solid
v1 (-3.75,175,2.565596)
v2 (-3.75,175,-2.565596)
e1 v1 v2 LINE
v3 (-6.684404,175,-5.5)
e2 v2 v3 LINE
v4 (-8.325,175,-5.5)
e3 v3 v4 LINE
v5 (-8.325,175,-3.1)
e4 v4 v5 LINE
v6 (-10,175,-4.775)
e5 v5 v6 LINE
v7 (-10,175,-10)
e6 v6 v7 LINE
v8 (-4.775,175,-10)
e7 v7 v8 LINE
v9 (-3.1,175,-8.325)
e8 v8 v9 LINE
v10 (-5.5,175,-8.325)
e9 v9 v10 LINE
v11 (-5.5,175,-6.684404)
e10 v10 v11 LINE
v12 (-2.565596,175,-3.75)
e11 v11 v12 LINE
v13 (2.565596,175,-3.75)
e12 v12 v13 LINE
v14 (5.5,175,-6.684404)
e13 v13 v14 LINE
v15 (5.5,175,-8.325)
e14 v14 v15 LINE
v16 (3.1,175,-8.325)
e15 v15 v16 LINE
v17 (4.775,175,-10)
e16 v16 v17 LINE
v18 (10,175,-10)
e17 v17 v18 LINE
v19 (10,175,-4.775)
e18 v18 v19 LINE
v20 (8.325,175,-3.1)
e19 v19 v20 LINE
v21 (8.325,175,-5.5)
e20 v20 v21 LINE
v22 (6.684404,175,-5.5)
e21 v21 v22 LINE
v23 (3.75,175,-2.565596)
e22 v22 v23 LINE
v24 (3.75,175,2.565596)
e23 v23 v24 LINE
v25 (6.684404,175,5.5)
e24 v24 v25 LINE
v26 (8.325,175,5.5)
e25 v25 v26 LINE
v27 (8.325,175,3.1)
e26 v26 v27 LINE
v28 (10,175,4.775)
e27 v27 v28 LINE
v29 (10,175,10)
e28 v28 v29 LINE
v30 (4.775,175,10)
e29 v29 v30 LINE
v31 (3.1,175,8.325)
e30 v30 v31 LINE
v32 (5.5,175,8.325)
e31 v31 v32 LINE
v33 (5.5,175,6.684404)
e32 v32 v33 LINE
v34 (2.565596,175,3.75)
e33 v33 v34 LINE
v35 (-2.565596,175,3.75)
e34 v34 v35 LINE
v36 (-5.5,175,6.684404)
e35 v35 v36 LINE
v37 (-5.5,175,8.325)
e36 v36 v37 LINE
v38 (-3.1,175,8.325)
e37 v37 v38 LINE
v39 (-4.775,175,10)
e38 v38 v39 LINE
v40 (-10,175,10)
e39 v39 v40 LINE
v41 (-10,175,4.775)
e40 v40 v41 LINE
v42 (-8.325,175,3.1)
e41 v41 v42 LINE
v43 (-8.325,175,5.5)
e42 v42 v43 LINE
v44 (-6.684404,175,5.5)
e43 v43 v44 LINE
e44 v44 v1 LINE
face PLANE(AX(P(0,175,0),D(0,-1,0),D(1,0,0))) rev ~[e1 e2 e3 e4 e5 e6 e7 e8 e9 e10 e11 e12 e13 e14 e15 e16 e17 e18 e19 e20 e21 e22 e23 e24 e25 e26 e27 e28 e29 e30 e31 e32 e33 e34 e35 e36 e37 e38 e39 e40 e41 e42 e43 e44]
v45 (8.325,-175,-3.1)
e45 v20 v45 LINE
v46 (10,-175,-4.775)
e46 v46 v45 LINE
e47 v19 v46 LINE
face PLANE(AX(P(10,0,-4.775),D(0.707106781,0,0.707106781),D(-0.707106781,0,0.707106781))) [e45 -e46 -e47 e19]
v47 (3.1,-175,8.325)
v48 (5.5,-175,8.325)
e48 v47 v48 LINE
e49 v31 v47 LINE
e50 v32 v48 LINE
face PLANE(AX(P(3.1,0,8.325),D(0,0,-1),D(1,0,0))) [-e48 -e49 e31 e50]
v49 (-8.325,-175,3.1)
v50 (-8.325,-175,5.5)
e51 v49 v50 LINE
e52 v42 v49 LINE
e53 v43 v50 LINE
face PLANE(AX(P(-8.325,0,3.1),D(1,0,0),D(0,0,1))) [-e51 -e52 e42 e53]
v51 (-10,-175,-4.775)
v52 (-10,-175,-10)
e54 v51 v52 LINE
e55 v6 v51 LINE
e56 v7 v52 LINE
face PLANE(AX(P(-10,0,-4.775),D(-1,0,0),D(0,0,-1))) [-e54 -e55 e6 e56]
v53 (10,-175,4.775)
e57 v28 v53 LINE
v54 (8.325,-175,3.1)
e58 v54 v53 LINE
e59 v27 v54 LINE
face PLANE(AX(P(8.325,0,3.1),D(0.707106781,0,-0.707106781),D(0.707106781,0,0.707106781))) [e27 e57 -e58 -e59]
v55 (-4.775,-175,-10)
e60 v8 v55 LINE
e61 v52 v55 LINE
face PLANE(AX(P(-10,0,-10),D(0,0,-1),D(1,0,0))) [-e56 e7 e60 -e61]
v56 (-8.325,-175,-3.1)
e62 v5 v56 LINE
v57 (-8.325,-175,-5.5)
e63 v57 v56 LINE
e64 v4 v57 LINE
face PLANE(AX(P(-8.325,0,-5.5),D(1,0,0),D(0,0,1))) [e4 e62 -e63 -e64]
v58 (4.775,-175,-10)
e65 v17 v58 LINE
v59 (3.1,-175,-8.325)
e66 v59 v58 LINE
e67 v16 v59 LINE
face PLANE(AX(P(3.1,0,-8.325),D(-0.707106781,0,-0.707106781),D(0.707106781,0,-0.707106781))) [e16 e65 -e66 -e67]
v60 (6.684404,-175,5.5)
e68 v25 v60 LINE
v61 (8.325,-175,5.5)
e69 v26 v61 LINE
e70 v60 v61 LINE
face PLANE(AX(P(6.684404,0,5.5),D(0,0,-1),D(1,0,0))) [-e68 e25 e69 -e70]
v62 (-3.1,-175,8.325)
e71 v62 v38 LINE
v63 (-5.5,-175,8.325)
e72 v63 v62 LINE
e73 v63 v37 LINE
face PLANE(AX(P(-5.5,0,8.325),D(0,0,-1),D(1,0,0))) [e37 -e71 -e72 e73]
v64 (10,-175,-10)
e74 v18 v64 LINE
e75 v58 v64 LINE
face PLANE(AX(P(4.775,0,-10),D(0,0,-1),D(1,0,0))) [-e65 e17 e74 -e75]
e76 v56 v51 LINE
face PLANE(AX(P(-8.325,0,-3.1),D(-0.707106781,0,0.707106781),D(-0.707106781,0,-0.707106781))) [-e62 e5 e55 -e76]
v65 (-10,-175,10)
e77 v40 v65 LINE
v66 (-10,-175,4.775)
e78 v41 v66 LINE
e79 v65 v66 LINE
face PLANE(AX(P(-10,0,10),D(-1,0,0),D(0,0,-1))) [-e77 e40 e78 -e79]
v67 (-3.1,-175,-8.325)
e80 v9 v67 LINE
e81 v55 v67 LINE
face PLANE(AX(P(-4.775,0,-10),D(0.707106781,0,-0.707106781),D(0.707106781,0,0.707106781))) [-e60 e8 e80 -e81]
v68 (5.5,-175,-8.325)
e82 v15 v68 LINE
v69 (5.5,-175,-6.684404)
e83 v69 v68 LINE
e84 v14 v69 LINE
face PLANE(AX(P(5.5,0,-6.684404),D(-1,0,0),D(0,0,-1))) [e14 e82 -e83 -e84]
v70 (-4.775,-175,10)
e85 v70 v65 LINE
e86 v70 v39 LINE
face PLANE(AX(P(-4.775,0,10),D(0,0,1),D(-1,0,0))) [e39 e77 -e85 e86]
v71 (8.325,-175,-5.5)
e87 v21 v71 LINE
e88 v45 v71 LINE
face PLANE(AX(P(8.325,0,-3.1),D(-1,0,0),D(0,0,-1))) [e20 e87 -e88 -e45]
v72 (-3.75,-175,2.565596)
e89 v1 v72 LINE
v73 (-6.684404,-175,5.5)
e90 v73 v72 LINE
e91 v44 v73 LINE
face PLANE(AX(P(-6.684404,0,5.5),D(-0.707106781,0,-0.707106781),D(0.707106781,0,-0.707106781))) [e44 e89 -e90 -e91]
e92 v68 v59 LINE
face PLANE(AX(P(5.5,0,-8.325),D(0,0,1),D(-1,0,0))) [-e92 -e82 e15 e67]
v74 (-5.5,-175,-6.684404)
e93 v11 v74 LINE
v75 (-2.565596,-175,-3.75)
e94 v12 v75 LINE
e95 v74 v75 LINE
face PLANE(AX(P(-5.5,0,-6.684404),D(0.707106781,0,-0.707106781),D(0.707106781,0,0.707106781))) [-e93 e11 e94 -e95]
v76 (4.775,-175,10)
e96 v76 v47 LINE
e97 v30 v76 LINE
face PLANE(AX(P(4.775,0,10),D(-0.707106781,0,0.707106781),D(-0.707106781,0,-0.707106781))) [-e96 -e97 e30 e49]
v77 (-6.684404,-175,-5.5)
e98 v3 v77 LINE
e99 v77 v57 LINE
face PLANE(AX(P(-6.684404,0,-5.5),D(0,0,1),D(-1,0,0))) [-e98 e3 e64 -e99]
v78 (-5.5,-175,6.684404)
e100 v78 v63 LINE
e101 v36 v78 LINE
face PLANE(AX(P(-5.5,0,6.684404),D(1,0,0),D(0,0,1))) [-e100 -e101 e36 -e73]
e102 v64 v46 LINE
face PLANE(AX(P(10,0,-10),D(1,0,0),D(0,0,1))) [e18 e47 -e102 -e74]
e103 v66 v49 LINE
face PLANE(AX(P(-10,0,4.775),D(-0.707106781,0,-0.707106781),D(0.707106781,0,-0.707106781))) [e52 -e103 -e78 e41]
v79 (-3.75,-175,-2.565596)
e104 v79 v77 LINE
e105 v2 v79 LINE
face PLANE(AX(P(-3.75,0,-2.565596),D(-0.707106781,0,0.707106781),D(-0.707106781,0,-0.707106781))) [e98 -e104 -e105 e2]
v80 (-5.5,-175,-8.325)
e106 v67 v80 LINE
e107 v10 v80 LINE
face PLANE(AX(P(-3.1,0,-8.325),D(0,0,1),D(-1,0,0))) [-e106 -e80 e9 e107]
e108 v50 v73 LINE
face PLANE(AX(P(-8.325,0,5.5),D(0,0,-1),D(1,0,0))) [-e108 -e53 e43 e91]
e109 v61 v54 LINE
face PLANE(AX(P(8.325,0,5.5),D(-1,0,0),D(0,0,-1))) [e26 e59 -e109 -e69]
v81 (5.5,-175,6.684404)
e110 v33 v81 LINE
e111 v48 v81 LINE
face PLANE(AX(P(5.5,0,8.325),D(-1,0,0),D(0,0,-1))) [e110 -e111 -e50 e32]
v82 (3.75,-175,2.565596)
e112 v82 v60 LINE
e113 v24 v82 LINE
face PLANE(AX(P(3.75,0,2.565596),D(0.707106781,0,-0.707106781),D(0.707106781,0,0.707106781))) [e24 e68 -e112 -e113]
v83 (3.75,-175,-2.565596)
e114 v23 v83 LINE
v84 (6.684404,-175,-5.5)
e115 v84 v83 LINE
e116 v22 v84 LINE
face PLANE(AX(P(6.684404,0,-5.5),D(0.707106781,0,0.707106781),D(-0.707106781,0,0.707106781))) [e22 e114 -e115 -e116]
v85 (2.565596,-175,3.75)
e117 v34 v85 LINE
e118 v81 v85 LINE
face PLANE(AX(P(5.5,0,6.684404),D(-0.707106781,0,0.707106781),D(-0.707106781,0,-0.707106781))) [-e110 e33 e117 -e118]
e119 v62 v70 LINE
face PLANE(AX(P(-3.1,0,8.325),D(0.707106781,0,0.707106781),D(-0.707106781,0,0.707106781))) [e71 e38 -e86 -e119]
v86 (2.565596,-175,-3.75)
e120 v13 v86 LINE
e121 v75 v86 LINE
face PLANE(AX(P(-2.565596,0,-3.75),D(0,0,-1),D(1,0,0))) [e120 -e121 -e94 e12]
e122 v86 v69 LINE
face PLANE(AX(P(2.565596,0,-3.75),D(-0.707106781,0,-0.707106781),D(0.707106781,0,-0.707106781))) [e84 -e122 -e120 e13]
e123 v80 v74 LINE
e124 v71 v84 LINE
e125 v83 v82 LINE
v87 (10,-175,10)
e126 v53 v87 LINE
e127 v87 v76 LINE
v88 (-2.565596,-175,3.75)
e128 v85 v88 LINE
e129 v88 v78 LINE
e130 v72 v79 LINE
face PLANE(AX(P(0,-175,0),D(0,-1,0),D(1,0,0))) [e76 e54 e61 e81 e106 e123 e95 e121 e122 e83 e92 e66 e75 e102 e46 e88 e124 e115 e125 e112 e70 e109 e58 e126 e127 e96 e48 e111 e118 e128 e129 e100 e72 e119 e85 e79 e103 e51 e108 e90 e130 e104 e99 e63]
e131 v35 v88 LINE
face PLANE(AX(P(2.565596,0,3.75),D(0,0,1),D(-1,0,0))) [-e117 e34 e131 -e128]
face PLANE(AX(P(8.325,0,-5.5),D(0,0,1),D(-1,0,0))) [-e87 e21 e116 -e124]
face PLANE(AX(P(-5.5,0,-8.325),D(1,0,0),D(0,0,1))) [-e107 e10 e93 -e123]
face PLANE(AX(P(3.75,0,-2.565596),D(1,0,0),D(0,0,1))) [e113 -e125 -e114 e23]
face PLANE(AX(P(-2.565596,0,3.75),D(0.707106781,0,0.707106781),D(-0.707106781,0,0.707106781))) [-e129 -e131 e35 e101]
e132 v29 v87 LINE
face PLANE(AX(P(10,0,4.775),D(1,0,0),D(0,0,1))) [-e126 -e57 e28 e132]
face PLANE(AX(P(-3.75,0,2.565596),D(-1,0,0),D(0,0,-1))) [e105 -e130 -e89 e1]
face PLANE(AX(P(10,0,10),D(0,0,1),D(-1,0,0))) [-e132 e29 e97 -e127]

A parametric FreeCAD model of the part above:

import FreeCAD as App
import Part
import Sketcher

doc = App.newDocument("Part")
body = doc.addObject("PartDesign::Body", "Body")

# Sketch on XZ plane
sketch1 = body.newObject("Sketcher::SketchObject", "Sketch")
sketch1.AttachmentSupport = (doc.getObject("XZ_Plane"), [""])
sketch1.MapMode = "FlatFace"
sketch1.addGeometry(Part.LineSegment(App.Vector(-4.8, 10, 0), App.Vector(-10, 10, 0)), False)
sketch1.addGeometry(Part.LineSegment(App.Vector(-10, 10, 0), App.Vector(-10, 4.8, 0)), False)
sketch1.addGeometry(Part.LineSegment(App.Vector(-10, 4.8, 0), App.Vector(-8.3, 3.1, 0)), False)
sketch1.addGeometry(Part.LineSegment(App.Vector(-8.3, 3.1, 0), App.Vector(-8.3, 5.5, 0)), False)
sketch1.addGeometry(Part.LineSegment(App.Vector(-8.3, 5.5, 0), App.Vector(-6.7, 5.5, 0)), False)
sketch1.addGeometry(Part.LineSegment(App.Vector(-6.7, 5.5, 0), App.Vector(-3.8, 2.6, 0)), False)
sketch1.addGeometry(Part.LineSegment(App.Vector(-3.8, 2.6, 0), App.Vector(-3.8, -2.6, 0)), False)
sketch1.addGeometry(Part.LineSegment(App.Vector(-3.8, -2.6, 0), App.Vector(-6.7, -5.5, 0)), False)
sketch1.addGeometry(Part.LineSegment(App.Vector(-6.7, -5.5, 0), App.Vector(-8.3, -5.5, 0)), False)
sketch1.addGeometry(Part.LineSegment(App.Vector(-8.3, -5.5, 0), App.Vector(-8.3, -3.1, 0)), False)
sketch1.addGeometry(Part.LineSegment(App.Vector(-8.3, -3.1, 0), App.Vector(-10, -4.8, 0)), False)
sketch1.addGeometry(Part.LineSegment(App.Vector(-10, -4.8, 0), App.Vector(-10, -10, 0)), False)
sketch1.addGeometry(Part.LineSegment(App.Vector(-10, -10, 0), App.Vector(-4.8, -10, 0)), False)
sketch1.addGeometry(Part.LineSegment(App.Vector(-4.8, -10, 0), App.Vector(-3.1, -8.3, 0)), False)
sketch1.addGeometry(Part.LineSegment(App.Vector(-3.1, -8.3, 0), App.Vector(-5.5, -8.3, 0)), False)
sketch1.addGeometry(Part.LineSegment(App.Vector(-5.5, -8.3, 0), App.Vector(-5.5, -6.7, 0)), False)
sketch1.addGeometry(Part.LineSegment(App.Vector(-5.5, -6.7, 0), App.Vector(-2.6, -3.8, 0)), False)
sketch1.addGeometry(Part.LineSegment(App.Vector(-2.6, -3.8, 0), App.Vector(2.6, -3.8, 0)), False)
sketch1.addGeometry(Part.LineSegment(App.Vector(2.6, -3.8, 0), App.Vector(5.5, -6.7, 0)), False)
sketch1.addGeometry(Part.LineSegment(App.Vector(5.5, -6.7, 0), App.Vector(5.5, -8.3, 0)), False)
sketch1.addGeometry(Part.LineSegment(App.Vector(5.5, -8.3, 0), App.Vector(3.1, -8.3, 0)), False)
sketch1.addGeometry(Part.LineSegment(App.Vector(3.1, -8.3, 0), App.Vector(4.8, -10, 0)), False)
sketch1.addGeometry(Part.LineSegment(App.Vector(4.8, -10, 0), App.Vector(10, -10, 0)), False)
sketch1.addGeometry(Part.LineSegment(App.Vector(10, -10, 0), App.Vector(10, -4.8, 0)), False)
sketch1.addGeometry(Part.LineSegment(App.Vector(10, -4.8, 0), App.Vector(8.3, -3.1, 0)), False)
sketch1.addGeometry(Part.LineSegment(App.Vector(8.3, -3.1, 0), App.Vector(8.3, -5.5, 0)), False)
sketch1.addGeometry(Part.LineSegment(App.Vector(8.3, -5.5, 0), App.Vector(6.7, -5.5, 0)), False)
sketch1.addGeometry(Part.LineSegment(App.Vector(6.7, -5.5, 0), App.Vector(3.8, -2.6, 0)), False)
sketch1.addGeometry(Part.LineSegment(App.Vector(3.8, -2.6, 0), App.Vector(3.8, 2.6, 0)), False)
sketch1.addGeometry(Part.LineSegment(App.Vector(3.8, 2.6, 0), App.Vector(6.7, 5.5, 0)), False)
sketch1.addGeometry(Part.LineSegment(App.Vector(6.7, 5.5, 0), App.Vector(8.3, 5.5, 0)), False)
sketch1.addGeometry(Part.LineSegment(App.Vector(8.3, 5.5, 0), App.Vector(8.3, 3.1, 0)), False)
sketch1.addGeometry(Part.LineSegment(App.Vector(8.3, 3.1, 0), App.Vector(10, 4.8, 0)), False)
sketch1.addGeometry(Part.LineSegment(App.Vector(10, 4.8, 0), App.Vector(10, 10, 0)), False)
sketch1.addGeometry(Part.LineSegment(App.Vector(10, 10, 0), App.Vector(4.8, 10, 0)), False)
sketch1.addGeometry(Part.LineSegment(App.Vector(4.8, 10, 0), App.Vector(3.1, 8.3, 0)), False)
sketch1.addGeometry(Part.LineSegment(App.Vector(3.1, 8.3, 0), App.Vector(5.5, 8.3, 0)), False)
sketch1.addGeometry(Part.LineSegment(App.Vector(5.5, 8.3, 0), App.Vector(5.5, 6.7, 0)), False)
sketch1.addGeometry(Part.LineSegment(App.Vector(5.5, 6.7, 0), App.Vector(2.6, 3.8, 0)), False)
sketch1.addGeometry(Part.LineSegment(App.Vector(2.6, 3.8, 0), App.Vector(-2.6, 3.8, 0)), False)
sketch1.addGeometry(Part.LineSegment(App.Vector(-2.6, 3.8, 0), App.Vector(-5.5, 6.7, 0)), False)
sketch1.addGeometry(Part.LineSegment(App.Vector(-5.5, 6.7, 0), App.Vector(-5.5, 8.3, 0)), False)
sketch1.addGeometry(Part.LineSegment(App.Vector(-5.5, 8.3, 0), App.Vector(-3.1, 8.3, 0)), False)
sketch1.addGeometry(Part.LineSegment(App.Vector(-3.1, 8.3, 0), App.Vector(-4.8, 10, 0)), False)
sketch1.addConstraint(Sketcher.Constraint("Coincident", 0, 2, 1, 1))
sketch1.addConstraint(Sketcher.Constraint("Coincident", 1, 2, 2, 1))
sketch1.addConstraint(Sketcher.Constraint("Coincident", 2, 2, 3, 1))
sketch1.addConstraint(Sketcher.Constraint("Coincident", 3, 2, 4, 1))
sketch1.addConstraint(Sketcher.Constraint("Coincident", 4, 2, 5, 1))
sketch1.addConstraint(Sketcher.Constraint("Coincident", 5, 2, 6, 1))
sketch1.addConstraint(Sketcher.Constraint("Coincident", 6, 2, 7, 1))
sketch1.addConstraint(Sketcher.Constraint("Coincident", 7, 2, 8, 1))
sketch1.addConstraint(Sketcher.Constraint("Coincident", 8, 2, 9, 1))
sketch1.addConstraint(Sketcher.Constraint("Coincident", 9, 2, 10, 1))
sketch1.addConstraint(Sketcher.Constraint("Coincident", 10, 2, 11, 1))
sketch1.addConstraint(Sketcher.Constraint("Coincident", 11, 2, 12, 1))
sketch1.addConstraint(Sketcher.Constraint("Coincident", 12, 2, 13, 1))
sketch1.addConstraint(Sketcher.Constraint("Coincident", 13, 2, 14, 1))
sketch1.addConstraint(Sketcher.Constraint("Coincident", 14, 2, 15, 1))
sketch1.addConstraint(Sketcher.Constraint("Coincident", 15, 2, 16, 1))
sketch1.addConstraint(Sketcher.Constraint("Coincident", 16, 2, 17, 1))
sketch1.addConstraint(Sketcher.Constraint("Coincident", 17, 2, 18, 1))
sketch1.addConstraint(Sketcher.Constraint("Coincident", 18, 2, 19, 1))
sketch1.addConstraint(Sketcher.Constraint("Coincident", 19, 2, 20, 1))
sketch1.addConstraint(Sketcher.Constraint("Coincident", 20, 2, 21, 1))
sketch1.addConstraint(Sketcher.Constraint("Coincident", 21, 2, 22, 1))
sketch1.addConstraint(Sketcher.Constraint("Coincident", 22, 2, 23, 1))
sketch1.addConstraint(Sketcher.Constraint("Coincident", 23, 2, 24, 1))
sketch1.addConstraint(Sketcher.Constraint("Coincident", 24, 2, 25, 1))
sketch1.addConstraint(Sketcher.Constraint("Coincident", 25, 2, 26, 1))
sketch1.addConstraint(Sketcher.Constraint("Coincident", 26, 2, 27, 1))
sketch1.addConstraint(Sketcher.Constraint("Coincident", 27, 2, 28, 1))
sketch1.addConstraint(Sketcher.Constraint("Coincident", 28, 2, 29, 1))
sketch1.addConstraint(Sketcher.Constraint("Coincident", 29, 2, 30, 1))
sketch1.addConstraint(Sketcher.Constraint("Coincident", 30, 2, 31, 1))
sketch1.addConstraint(Sketcher.Constraint("Coincident", 31, 2, 32, 1))
sketch1.addConstraint(Sketcher.Constraint("Coincident", 32, 2, 33, 1))
sketch1.addConstraint(Sketcher.Constraint("Coincident", 33, 2, 34, 1))
sketch1.addConstraint(Sketcher.Constraint("Coincident", 34, 2, 35, 1))
sketch1.addConstraint(Sketcher.Constraint("Coincident", 35, 2, 36, 1))
sketch1.addConstraint(Sketcher.Constraint("Coincident", 36, 2, 37, 1))
sketch1.addConstraint(Sketcher.Constraint("Coincident", 37, 2, 38, 1))
sketch1.addConstraint(Sketcher.Constraint("Coincident", 38, 2, 39, 1))
sketch1.addConstraint(Sketcher.Constraint("Coincident", 39, 2, 40, 1))
sketch1.addConstraint(Sketcher.Constraint("Coincident", 40, 2, 41, 1))
sketch1.addConstraint(Sketcher.Constraint("Coincident", 41, 2, 42, 1))
sketch1.addConstraint(Sketcher.Constraint("Coincident", 42, 2, 43, 1))
sketch1.addConstraint(Sketcher.Constraint("Coincident", 43, 2, 0, 1))
sketch1.addConstraint(Sketcher.Constraint("Horizontal", 0))
sketch1.addConstraint(Sketcher.Constraint("Vertical", 1))
sketch1.addConstraint(Sketcher.Constraint("Vertical", 3))
sketch1.addConstraint(Sketcher.Constraint("Horizontal", 4))
sketch1.addConstraint(Sketcher.Constraint("Vertical", 6))
sketch1.addConstraint(Sketcher.Constraint("Horizontal", 8))
sketch1.addConstraint(Sketcher.Constraint("Vertical", 9))
sketch1.addConstraint(Sketcher.Constraint("Vertical", 11))
sketch1.addConstraint(Sketcher.Constraint("Horizontal", 12))
sketch1.addConstraint(Sketcher.Constraint("Horizontal", 14))
sketch1.addConstraint(Sketcher.Constraint("Vertical", 15))
sketch1.addConstraint(Sketcher.Constraint("Horizontal", 17))
sketch1.addConstraint(Sketcher.Constraint("Vertical", 19))
sketch1.addConstraint(Sketcher.Constraint("Horizontal", 20))
sketch1.addConstraint(Sketcher.Constraint("Horizontal", 22))
sketch1.addConstraint(Sketcher.Constraint("Vertical", 23))
sketch1.addConstraint(Sketcher.Constraint("Vertical", 25))
sketch1.addConstraint(Sketcher.Constraint("Horizontal", 26))
sketch1.addConstraint(Sketcher.Constraint("Vertical", 28))
sketch1.addConstraint(Sketcher.Constraint("Horizontal", 30))
sketch1.addConstraint(Sketcher.Constraint("Vertical", 31))
sketch1.addConstraint(Sketcher.Constraint("Vertical", 33))
sketch1.addConstraint(Sketcher.Constraint("Horizontal", 34))
sketch1.addConstraint(Sketcher.Constraint("Horizontal", 36))
sketch1.addConstraint(Sketcher.Constraint("Vertical", 37))
sketch1.addConstraint(Sketcher.Constraint("Horizontal", 39))
sketch1.addConstraint(Sketcher.Constraint("Vertical", 41))
sketch1.addConstraint(Sketcher.Constraint("Horizontal", 42))
sketch1.addConstraint(Sketcher.Constraint("Symmetric", 0, 2, 22, 2, -1, 1))
sketch1.addConstraint(Sketcher.Constraint("Symmetric", 2, 2, 24, 2, -1, 1))
sketch1.addConstraint(Sketcher.Constraint("Symmetric", 4, 2, 26, 2, -1, 1))
sketch1.addConstraint(Sketcher.Constraint("Symmetric", 5, 2, 27, 2, -1, 1))
sketch1.addConstraint(Sketcher.Constraint("Symmetric", 7, 2, 29, 2, -1, 1))
sketch1.addConstraint(Sketcher.Constraint("Symmetric", 9, 2, 31, 2, -1, 1))
sketch1.addConstraint(Sketcher.Constraint("Symmetric", 10, 2, 32, 2, -1, 1))
sketch1.addConstraint(Sketcher.Constraint("Symmetric", 12, 2, 34, 2, -1, 1))
sketch1.addConstraint(Sketcher.Constraint("Symmetric", 13, 2, 35, 2, -1, 1))
sketch1.addConstraint(Sketcher.Constraint("Symmetric", 15, 2, 37, 2, -1, 1))
sketch1.addConstraint(Sketcher.Constraint("Symmetric", 16, 2, 38, 2, -1, 1))
sketch1.addConstraint(Sketcher.Constraint("Symmetric", 18, 2, 40, 2, -1, 1))
sketch1.addConstraint(Sketcher.Constraint("Symmetric", 20, 2, 42, 2, -1, 1))
sketch1.addConstraint(Sketcher.Constraint("Symmetric", 15, 2, 18, 2, -2))
sketch1.addConstraint(Sketcher.Constraint("Symmetric", 13, 2, 20, 2, -2))
sketch1.addConstraint(Sketcher.Constraint("Symmetric", 12, 2, 21, 2, -2))
sketch1.addConstraint(Sketcher.Constraint("Symmetric", 10, 2, 23, 2, -2))
sketch1.addConstraint(Sketcher.Constraint("Symmetric", 9, 2, 24, 2, -2))
sketch1.addConstraint(Sketcher.Constraint("Symmetric", 7, 2, 26, 2, -2))
sketch1.addConstraint(Sketcher.Constraint("Parallel", 2, 5))
sketch1.addConstraint(Sketcher.Constraint("Perpendicular", 5, 7))
sketch1.addConstraint(Sketcher.Constraint("Parallel", 7, 10))
sketch1.addConstraint(Sketcher.Constraint("Parallel", 10, 13))
sketch1.addConstraint(Sketcher.Constraint("Parallel", 13, 16))
sketch1.addConstraint(Sketcher.Constraint("Perpendicular", 16, 18))
sketch1.addConstraint(Sketcher.Constraint("Parallel", 18, 21))
sketch1.addConstraint(Sketcher.Constraint("Perpendicular", 27, 29))
sketch1.addConstraint(Sketcher.Constraint("Perpendicular", 38, 40))
sketch1.addConstraint(Sketcher.Constraint("Parallel", 40, 43))
sketch1.addConstraint(Sketcher.Constraint("Equal", 34, 1))
sketch1.addConstraint(Sketcher.Constraint("Equal", 42, 3))
sketch1.addConstraint(Sketcher.Constraint("Equal", 39, 6))
sketch1.addConstraint(Sketcher.Constraint("Equal", 30, 15))
sketch1.addConstraint(Sketcher.Constraint("Equal", 10, 13))
sketch1.addConstraint(Sketcher.Constraint("Equal", 7, 16))
sketch1.addConstraint(Sketcher.Constraint("DistanceX", 14, 2, 14, 1, 2.4))
sketch1.addConstraint(Sketcher.Constraint("DistanceX", 0, 2, -1, 1, 10.0))
sketch1.addConstraint(Sketcher.Constraint("DistanceY", 7, 2, 4, 2, 11.0))
sketch1.addConstraint(Sketcher.Constraint("DistanceX", 5, 2, 28, 2, 7.5))
sketch1.addConstraint(Sketcher.Constraint("DistanceX", 0, 2, 0, 1, 5.225))
sketch1.addConstraint(Sketcher.Constraint("DistanceX", 4, 1, 4, 2, 1.640596))
pad1 = body.newObject("PartDesign::Pad", "Pad")
pad1.Profile = sketch1
pad1.Length = 350
pad1.Midplane = True

doc.recompute()
